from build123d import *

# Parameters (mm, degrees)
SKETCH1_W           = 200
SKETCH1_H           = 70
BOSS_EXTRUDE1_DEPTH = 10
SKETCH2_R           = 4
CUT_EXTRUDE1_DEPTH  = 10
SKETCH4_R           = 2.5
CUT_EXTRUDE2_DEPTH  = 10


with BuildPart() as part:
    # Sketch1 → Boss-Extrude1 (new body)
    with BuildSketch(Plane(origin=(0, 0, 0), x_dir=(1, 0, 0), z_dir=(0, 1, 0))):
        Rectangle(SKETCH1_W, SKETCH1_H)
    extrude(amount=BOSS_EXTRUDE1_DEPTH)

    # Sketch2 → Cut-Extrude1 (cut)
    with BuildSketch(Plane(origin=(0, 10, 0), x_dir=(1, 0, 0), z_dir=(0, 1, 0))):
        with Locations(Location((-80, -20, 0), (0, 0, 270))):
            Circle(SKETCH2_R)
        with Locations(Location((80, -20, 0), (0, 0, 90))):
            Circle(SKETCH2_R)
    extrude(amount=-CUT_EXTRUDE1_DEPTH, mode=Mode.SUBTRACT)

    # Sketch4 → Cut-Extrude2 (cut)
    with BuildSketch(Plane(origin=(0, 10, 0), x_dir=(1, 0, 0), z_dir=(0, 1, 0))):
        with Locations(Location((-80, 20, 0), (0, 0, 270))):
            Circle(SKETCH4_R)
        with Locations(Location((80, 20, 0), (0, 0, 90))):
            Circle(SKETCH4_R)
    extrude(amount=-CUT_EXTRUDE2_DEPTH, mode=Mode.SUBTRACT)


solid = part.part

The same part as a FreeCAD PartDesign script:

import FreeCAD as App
import Part
import Sketcher

V = App.Vector


def add_polygon(sketch, points):
    """Adds a closed chain of lines whose ends are joined by coincident constraints."""
    first, n = sketch.GeometryCount, len(points)
    for a, b in zip(points, points[1:] + points[:1]):
        sketch.addGeometry(Part.LineSegment(App.Vector(*a, 0), App.Vector(*b, 0)), False)
    for i in range(n):
        sketch.addConstraint(Sketcher.Constraint("Coincident", first + i, 2, first + (i + 1) % n, 1))

doc = App.newDocument("Part")
params = doc.addObject("Spreadsheet::Sheet", "Params")
for row, (alias, value) in enumerate([
    ("sketch1_width", "200 mm"),
    ("sketch1_height", "70 mm"),
    ("pad1_length", "10 mm"),
    ("sketch2_diameter", "8 mm"),
    ("pocket1_length", "10 mm"),
    ("sketch3_diameter", "5 mm"),
    ("pocket2_length", "10 mm"),
], start=1):
    params.set(f"A{row}", alias)
    params.set(f"B{row}", "=" + value)
    params.setAlias(f"B{row}", alias)

body = doc.addObject("PartDesign::Body", "Body")

sketch1 = body.newObject("Sketcher::SketchObject", "Sketch")
sketch1.AttachmentSupport = (doc.getObject("XZ_Plane"), [""])
sketch1.MapMode = "FlatFace"
add_polygon(sketch1, [(-100, -35), (-100, 35), (100, 35), (100, -35)])
sketch1.addConstraint(Sketcher.Constraint("Vertical", 0))
sketch1.addConstraint(Sketcher.Constraint("Horizontal", 1))
sketch1.addConstraint(Sketcher.Constraint("Vertical", 2))
sketch1.addConstraint(Sketcher.Constraint("Horizontal", 3))
sketch1.addConstraint(Sketcher.Constraint("Symmetric", 0, 2, 2, 2, -1, 1))
sketch1.addConstraint(Sketcher.Constraint("DistanceX", 1, 1, 1, 2, 200.0))
sketch1.addConstraint(Sketcher.Constraint("DistanceY", 0, 1, 0, 2, 70.0))
sketch1.setExpression("Constraints[9]", "Params.sketch1_width")
sketch1.setExpression("Constraints[10]", "Params.sketch1_height")
pad1 = body.newObject("PartDesign::Pad", "Pad")
pad1.Profile = sketch1
pad1.setExpression("Length", "Params.pad1_length")
pad1.Reversed = True

sketch2 = body.newObject("Sketcher::SketchObject", "Sketch001")
sketch2.AttachmentSupport = (doc.getObject("XZ_Plane"), [""])
sketch2.MapMode = "FlatFace"
sketch2.AttachmentOffset = App.Placement(V(0, 0, -10), App.Rotation())
sketch2.addGeometry(Part.Circle(V(-80, 20, 0), V(0, 0, 1), 4), False)
sketch2.addGeometry(Part.Circle(V(80, 20, 0), V(0, 0, 1), 4), False)
sketch2.addConstraint(Sketcher.Constraint("Equal", 0, 1))
sketch2.addConstraint(Sketcher.Constraint("Symmetric", 0, 3, 1, 3, -2))
sketch2.addConstraint(Sketcher.Constraint("Diameter", 0, 8.0))
sketch2.addConstraint(Sketcher.Constraint("DistanceX", 0, 3, -1, 1, 80.0))
sketch2.addConstraint(Sketcher.Constraint("DistanceY", -1, 1, 0, 3, 20.0))
sketch2.setExpression("Constraints[2]", "Params.sketch2_diameter")
pocket1 = body.newObject("PartDesign::Pocket", "Pocket")
pocket1.Profile = sketch2
pocket1.setExpression("Length", "Params.pocket1_length")
pocket1.Reversed = True

sketch3 = body.newObject("Sketcher::SketchObject", "Sketch002")
sketch3.AttachmentSupport = (doc.getObject("XZ_Plane"), [""])
sketch3.MapMode = "FlatFace"
sketch3.AttachmentOffset = App.Placement(V(0, 0, -10), App.Rotation())
sketch3.addGeometry(Part.Circle(V(-80, -20, 0), V(0, 0, 1), 2.5), False)
sketch3.addGeometry(Part.Circle(V(80, -20, 0), V(0, 0, 1), 2.5), False)
sketch3.addConstraint(Sketcher.Constraint("Equal", 0, 1))
sketch3.addConstraint(Sketcher.Constraint("Symmetric", 0, 3, 1, 3, -2))
sketch3.addConstraint(Sketcher.Constraint("Diameter", 0, 5.0))
sketch3.addConstraint(Sketcher.Constraint("DistanceX", 0, 3, -1, 1, 80.0))
sketch3.addConstraint(Sketcher.Constraint("DistanceY", 0, 3, -1, 1, 20.0))
sketch3.setExpression("Constraints[2]", "Params.sketch3_diameter")
pocket2 = body.newObject("PartDesign::Pocket", "Pocket001")
pocket2.Profile = sketch3
pocket2.setExpression("Length", "Params.pocket2_length")
pocket2.Reversed = True

doc.recompute()
